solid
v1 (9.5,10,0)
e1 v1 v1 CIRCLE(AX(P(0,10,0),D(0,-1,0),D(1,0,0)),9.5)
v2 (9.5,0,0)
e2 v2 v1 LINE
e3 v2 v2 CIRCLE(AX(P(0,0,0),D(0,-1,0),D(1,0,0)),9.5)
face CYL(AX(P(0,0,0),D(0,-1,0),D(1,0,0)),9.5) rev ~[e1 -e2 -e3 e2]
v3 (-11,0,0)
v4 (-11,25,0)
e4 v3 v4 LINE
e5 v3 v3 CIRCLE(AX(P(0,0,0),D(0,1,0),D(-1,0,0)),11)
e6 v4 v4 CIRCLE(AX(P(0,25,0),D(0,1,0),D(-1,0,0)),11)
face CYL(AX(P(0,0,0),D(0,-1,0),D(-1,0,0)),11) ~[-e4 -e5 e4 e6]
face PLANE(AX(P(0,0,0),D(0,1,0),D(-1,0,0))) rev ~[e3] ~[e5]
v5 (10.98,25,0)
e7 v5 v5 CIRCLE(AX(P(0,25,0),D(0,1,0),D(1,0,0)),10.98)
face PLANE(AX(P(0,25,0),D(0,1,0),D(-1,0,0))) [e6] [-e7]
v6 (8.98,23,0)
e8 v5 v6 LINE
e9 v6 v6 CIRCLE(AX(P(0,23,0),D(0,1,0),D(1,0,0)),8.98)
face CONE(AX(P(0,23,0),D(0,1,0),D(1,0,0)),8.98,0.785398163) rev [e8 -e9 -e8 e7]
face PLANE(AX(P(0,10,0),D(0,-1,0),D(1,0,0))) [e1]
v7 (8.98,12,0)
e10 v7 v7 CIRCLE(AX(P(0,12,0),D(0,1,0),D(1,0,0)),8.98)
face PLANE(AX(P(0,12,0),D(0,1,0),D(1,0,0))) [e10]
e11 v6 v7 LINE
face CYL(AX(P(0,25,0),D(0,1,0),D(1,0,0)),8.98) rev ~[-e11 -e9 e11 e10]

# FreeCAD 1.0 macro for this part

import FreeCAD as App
import Part
import Sketcher
from FreeCAD import Vector


def edges_at(feature, points):
    """Names of the edges that pass closest to the given points."""
    edges = feature.Shape.Edges
    near = lambda p: min(range(len(edges)), key=lambda i: edges[i].distToShape(Part.Vertex(*p))[0])
    return sorted({f"Edge{near(p) + 1}" for p in points})

doc = App.newDocument("Part")
params = doc.addObject("Spreadsheet::Sheet", "Params")
for row, (alias, value) in enumerate([
    ("sketch1_diameter", "22 mm"),
    ("pad1_length", "25 mm"),
    ("sketch2_diameter", "19 mm"),
    ("pocket1_length", "10 mm"),
    ("sketch3_diameter", "17.96 mm"),
    ("pocket2_length", "13 mm"),
    ("chamfer_size", "2 mm"),
], start=1):
    params.set(f"A{row}", alias)
    params.set(f"B{row}", "=" + value)
    params.setAlias(f"B{row}", alias)

body = doc.addObject("PartDesign::Body", "Body")

# Sketch on XZ plane
sketch1 = body.newObject("Sketcher::SketchObject", "Sketch")
sketch1.AttachmentSupport = (doc.getObject("XZ_Plane"), [""])
sketch1.MapMode = "FlatFace"
sketch1.addGeometry(Part.Circle(Vector(0, 0, 0), Vector(0, 0, 1), 11), False)
sketch1.addConstraint([
    Sketcher.Constraint("Coincident", 0, 3, -1, 1),
    Sketcher.Constraint("Diameter", 0, 22.0),
])
sketch1.setExpression("Constraints[1]", "Params.sketch1_diameter")
pad1 = body.newObject("PartDesign::Pad", "Pad")
pad1.Profile = sketch1
pad1.setExpression("Length", "Params.pad1_length")
pad1.Reversed = True

# Sketch on XZ plane
sketch2 = body.newObject("Sketcher::SketchObject", "Sketch001")
sketch2.AttachmentSupport = (doc.getObject("XZ_Plane"), [""])
sketch2.MapMode = "FlatFace"
sketch2.addGeometry(Part.Circle(Vector(0, 0, 0), Vector(0, 0, 1), 10), False)
sketch2.addConstraint([
    Sketcher.Constraint("Coincident", 0, 3, -1, 1),
    Sketcher.Constraint("Diameter", 0, 19.0),
])
sketch2.setExpression("Constraints[1]", "Params.sketch2_diameter")
pocket1 = body.newObject("PartDesign::Pocket", "Pocket")
pocket1.Profile = sketch2
pocket1.setExpression("Length", "Params.pocket1_length")

# Sketch on XZ plane
sketch3 = body.newObject("Sketcher::SketchObject", "Sketch002")
sketch3.AttachmentSupport = (doc.getObject("XZ_Plane"), [""])
sketch3.MapMode = "FlatFace"
sketch3.AttachmentOffset = App.Placement(Vector(0, 0, -25), App.Rotation())
sketch3.addGeometry(Part.Circle(Vector(0, 0, 0), Vector(0, 0, 1), 9), False)
sketch3.addConstraint([
    Sketcher.Constraint("Coincident", 0, 3, -1, 1),
    Sketcher.Constraint("Diameter", 0, 17.96),
])
sketch3.setExpression("Constraints[1]", "Params.sketch3_diameter")
pocket2 = body.newObject("PartDesign::Pocket", "Pocket001")
pocket2.Profile = sketch3
pocket2.setExpression("Length", "Params.pocket2_length")
pocket2.Reversed = True
doc.recompute()

chamfer = body.newObject("PartDesign::Chamfer", "Chamfer")
chamfer.Base = (pocket2, edges_at(pocket2, [(-8.98, 25, 0)]))
chamfer.setExpression("Size", "Params.chamfer_size")

doc.recompute()
